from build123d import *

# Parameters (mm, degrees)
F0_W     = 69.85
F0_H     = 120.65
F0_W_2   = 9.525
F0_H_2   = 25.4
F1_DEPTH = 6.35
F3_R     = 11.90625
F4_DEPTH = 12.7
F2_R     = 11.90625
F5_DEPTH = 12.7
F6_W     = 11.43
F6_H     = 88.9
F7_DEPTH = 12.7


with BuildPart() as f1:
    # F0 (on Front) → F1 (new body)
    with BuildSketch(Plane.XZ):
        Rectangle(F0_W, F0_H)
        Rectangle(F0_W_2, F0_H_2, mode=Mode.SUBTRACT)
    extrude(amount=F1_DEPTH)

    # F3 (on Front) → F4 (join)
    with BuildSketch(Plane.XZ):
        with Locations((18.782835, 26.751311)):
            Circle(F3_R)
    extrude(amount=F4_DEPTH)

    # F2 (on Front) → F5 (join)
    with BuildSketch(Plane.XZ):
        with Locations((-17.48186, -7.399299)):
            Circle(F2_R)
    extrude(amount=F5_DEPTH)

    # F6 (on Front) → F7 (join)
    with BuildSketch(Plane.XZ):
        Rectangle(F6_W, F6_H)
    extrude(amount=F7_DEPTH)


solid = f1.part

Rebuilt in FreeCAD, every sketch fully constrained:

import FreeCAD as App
import Part
import Sketcher
from FreeCAD import Vector
Q = App.Units.Quantity

doc = App.newDocument("Part")
params = doc.addObject("Spreadsheet::Sheet", "Params")
for row, (alias, value) in enumerate([
    ("sketch1_height", "1 in"),
    ("sketch1_width", "2.75 in"),
    ("sketch1_height2", "4.75 in"),
    ("sketch1_width2", "0.375 in"),
    ("pad1_length", "0.25 in"),
    ("sketch2_diameter", "0.9375 in"),
    ("pad2_length", "0.5 in"),
    ("sketch3_diameter", "0.9375 in"),
    ("pad3_length", "0.5 in"),
    ("sketch4_height", "3.5 in"),
    ("sketch4_width", "0.45 in"),
    ("pad4_length", "0.5 in"),
], start=1):
    params.set(f"A{row}", alias)
    params.set(f"B{row}", "=" + value)
    params.setAlias(f"B{row}", alias)

body = doc.addObject("PartDesign::Body", "Body")

# Sketch on XZ plane
sketch1 = body.newObject("Sketcher::SketchObject", "Sketch")
sketch1.AttachmentSupport = (doc.getObject("XZ_Plane"), [""])
sketch1.MapMode = "FlatFace"
sketch1.addGeometry(Part.LineSegment(Vector(-34.925, 60.325, 0), Vector(-34.925, -60.325, 0)), False)
sketch1.addGeometry(Part.LineSegment(Vector(-34.925, -60.325, 0), Vector(34.925, -60.325, 0)), False)
sketch1.addGeometry(Part.LineSegment(Vector(34.925, -60.325, 0), Vector(34.925, 60.325, 0)), False)
sketch1.addGeometry(Part.LineSegment(Vector(34.925, 60.325, 0), Vector(-34.925, 60.325, 0)), False)
sketch1.addGeometry(Part.LineSegment(Vector(4.7625, -12.7, 0), Vector(-4.7625, -12.7, 0)), False)
sketch1.addGeometry(Part.LineSegment(Vector(-4.7625, -12.7, 0), Vector(-4.7625, 12.7, 0)), False)
sketch1.addGeometry(Part.LineSegment(Vector(-4.7625, 12.7, 0), Vector(4.7625, 12.7, 0)), False)
sketch1.addGeometry(Part.LineSegment(Vector(4.7625, 12.7, 0), Vector(4.7625, -12.7, 0)), False)
sketch1.addConstraint(Sketcher.Constraint("Coincident", 0, 2, 1, 1))
sketch1.addConstraint(Sketcher.Constraint("Coincident", 1, 2, 2, 1))
sketch1.addConstraint(Sketcher.Constraint("Coincident", 2, 2, 3, 1))
sketch1.addConstraint(Sketcher.Constraint("Coincident", 3, 2, 0, 1))
sketch1.addConstraint(Sketcher.Constraint("Coincident", 4, 2, 5, 1))
sketch1.addConstraint(Sketcher.Constraint("Coincident", 5, 2, 6, 1))
sketch1.addConstraint(Sketcher.Constraint("Coincident", 6, 2, 7, 1))
sketch1.addConstraint(Sketcher.Constraint("Coincident", 7, 2, 4, 1))
sketch1.addConstraint(Sketcher.Constraint("Vertical", 0))
sketch1.addConstraint(Sketcher.Constraint("Horizontal", 1))
sketch1.addConstraint(Sketcher.Constraint("Vertical", 2))
sketch1.addConstraint(Sketcher.Constraint("Horizontal", 3))
sketch1.addConstraint(Sketcher.Constraint("Horizontal", 4))
sketch1.addConstraint(Sketcher.Constraint("Vertical", 5))
sketch1.addConstraint(Sketcher.Constraint("Horizontal", 6))
sketch1.addConstraint(Sketcher.Constraint("Vertical", 7))
sketch1.addConstraint(Sketcher.Constraint("Symmetric", 0, 2, 2, 2, -1, 1))
sketch1.addConstraint(Sketcher.Constraint("Symmetric", 4, 2, 6, 2, -1, 1))
sketch1.addConstraint(Sketcher.Constraint("DistanceY", 5, 1, 5, 2, Q("1 in")))
sketch1.addConstraint(Sketcher.Constraint("DistanceX", 1, 1, 1, 2, Q("2.75 in")))
sketch1.addConstraint(Sketcher.Constraint("DistanceY", 0, 2, 0, 1, Q("4.75 in")))
sketch1.addConstraint(Sketcher.Constraint("DistanceX", 4, 2, 4, 1, Q("0.375 in")))
sketch1.setExpression("Constraints[18]", "Params.sketch1_height")
sketch1.setExpression("Constraints[19]", "Params.sketch1_width")
sketch1.setExpression("Constraints[20]", "Params.sketch1_height2")
sketch1.setExpression("Constraints[21]", "Params.sketch1_width2")
pad1 = body.newObject("PartDesign::Pad", "Pad")
pad1.Profile = sketch1
pad1.setExpression("Length", "Params.pad1_length")

# Sketch on XZ plane
sketch2 = body.newObject("Sketcher::SketchObject", "Sketch001")
sketch2.AttachmentSupport = (doc.getObject("XZ_Plane"), [""])
sketch2.MapMode = "FlatFace"
sketch2.addGeometry(Part.Circle(Vector(18.782835, 26.751311, 0), Vector(0, 0, 1), 11.90625), False)
sketch2.addConstraint(Sketcher.Constraint("Diameter", 0, Q("0.9375 in")))
sketch2.addConstraint(Sketcher.Constraint("DistanceY", -1, 1, 0, 3, 26.751311))
sketch2.addConstraint(Sketcher.Constraint("DistanceX", -1, 1, 0, 3, 18.782835))
sketch2.setExpression("Constraints[0]", "Params.sketch2_diameter")
pad2 = body.newObject("PartDesign::Pad", "Pad001")
pad2.Profile = sketch2
pad2.setExpression("Length", "Params.pad2_length")

# Sketch on XZ plane
sketch3 = body.newObject("Sketcher::SketchObject", "Sketch002")
sketch3.AttachmentSupport = (doc.getObject("XZ_Plane"), [""])
sketch3.MapMode = "FlatFace"
sketch3.addGeometry(Part.Circle(Vector(-17.48186, -7.399299, 0), Vector(0, 0, 1), 11.90625), False)
sketch3.addConstraint(Sketcher.Constraint("Diameter", 0, Q("0.9375 in")))
sketch3.addConstraint(Sketcher.Constraint("DistanceY", 0, 3, -1, 1, 7.399299))
sketch3.addConstraint(Sketcher.Constraint("DistanceX", 0, 3, -1, 1, 17.48186))
sketch3.setExpression("Constraints[0]", "Params.sketch3_diameter")
pad3 = body.newObject("PartDesign::Pad", "Pad002")
pad3.Profile = sketch3
pad3.setExpression("Length", "Params.pad3_length")

# Sketch on XZ plane
sketch4 = body.newObject("Sketcher::SketchObject", "Sketch003")
sketch4.AttachmentSupport = (doc.getObject("XZ_Plane"), [""])
sketch4.MapMode = "FlatFace"
sketch4.addGeometry(Part.LineSegment(Vector(-5.715, 44.45, 0), Vector(-5.715, -44.45, 0)), False)
sketch4.addGeometry(Part.LineSegment(Vector(-5.715, -44.45, 0), Vector(5.715, -44.45, 0)), False)
sketch4.addGeometry(Part.LineSegment(Vector(5.715, -44.45, 0), Vector(5.715, 44.45, 0)), False)
sketch4.addGeometry(Part.LineSegment(Vector(5.715, 44.45, 0), Vector(-5.715, 44.45, 0)), False)
sketch4.addConstraint(Sketcher.Constraint("Coincident", 0, 2, 1, 1))
sketch4.addConstraint(Sketcher.Constraint("Coincident", 1, 2, 2, 1))
sketch4.addConstraint(Sketcher.Constraint("Coincident", 2, 2, 3, 1))
sketch4.addConstraint(Sketcher.Constraint("Coincident", 3, 2, 0, 1))
sketch4.addConstraint(Sketcher.Constraint("Vertical", 0))
sketch4.addConstraint(Sketcher.Constraint("Horizontal", 1))
sketch4.addConstraint(Sketcher.Constraint("Vertical", 2))
sketch4.addConstraint(Sketcher.Constraint("Horizontal", 3))
sketch4.addConstraint(Sketcher.Constraint("Symmetric", 0, 2, 2, 2, -1, 1))
sketch4.addConstraint(Sketcher.Constraint("DistanceY", 0, 2, 0, 1, Q("3.5 in")))
sketch4.addConstraint(Sketcher.Constraint("DistanceX", 1, 1, 1, 2, Q("0.45 in")))
sketch4.setExpression("Constraints[9]", "Params.sketch4_height")
sketch4.setExpression("Constraints[10]", "Params.sketch4_width")
pad4 = body.newObject("PartDesign::Pad", "Pad003")
pad4.Profile = sketch4
pad4.setExpression("Length", "Params.pad4_length")

doc.recompute()
